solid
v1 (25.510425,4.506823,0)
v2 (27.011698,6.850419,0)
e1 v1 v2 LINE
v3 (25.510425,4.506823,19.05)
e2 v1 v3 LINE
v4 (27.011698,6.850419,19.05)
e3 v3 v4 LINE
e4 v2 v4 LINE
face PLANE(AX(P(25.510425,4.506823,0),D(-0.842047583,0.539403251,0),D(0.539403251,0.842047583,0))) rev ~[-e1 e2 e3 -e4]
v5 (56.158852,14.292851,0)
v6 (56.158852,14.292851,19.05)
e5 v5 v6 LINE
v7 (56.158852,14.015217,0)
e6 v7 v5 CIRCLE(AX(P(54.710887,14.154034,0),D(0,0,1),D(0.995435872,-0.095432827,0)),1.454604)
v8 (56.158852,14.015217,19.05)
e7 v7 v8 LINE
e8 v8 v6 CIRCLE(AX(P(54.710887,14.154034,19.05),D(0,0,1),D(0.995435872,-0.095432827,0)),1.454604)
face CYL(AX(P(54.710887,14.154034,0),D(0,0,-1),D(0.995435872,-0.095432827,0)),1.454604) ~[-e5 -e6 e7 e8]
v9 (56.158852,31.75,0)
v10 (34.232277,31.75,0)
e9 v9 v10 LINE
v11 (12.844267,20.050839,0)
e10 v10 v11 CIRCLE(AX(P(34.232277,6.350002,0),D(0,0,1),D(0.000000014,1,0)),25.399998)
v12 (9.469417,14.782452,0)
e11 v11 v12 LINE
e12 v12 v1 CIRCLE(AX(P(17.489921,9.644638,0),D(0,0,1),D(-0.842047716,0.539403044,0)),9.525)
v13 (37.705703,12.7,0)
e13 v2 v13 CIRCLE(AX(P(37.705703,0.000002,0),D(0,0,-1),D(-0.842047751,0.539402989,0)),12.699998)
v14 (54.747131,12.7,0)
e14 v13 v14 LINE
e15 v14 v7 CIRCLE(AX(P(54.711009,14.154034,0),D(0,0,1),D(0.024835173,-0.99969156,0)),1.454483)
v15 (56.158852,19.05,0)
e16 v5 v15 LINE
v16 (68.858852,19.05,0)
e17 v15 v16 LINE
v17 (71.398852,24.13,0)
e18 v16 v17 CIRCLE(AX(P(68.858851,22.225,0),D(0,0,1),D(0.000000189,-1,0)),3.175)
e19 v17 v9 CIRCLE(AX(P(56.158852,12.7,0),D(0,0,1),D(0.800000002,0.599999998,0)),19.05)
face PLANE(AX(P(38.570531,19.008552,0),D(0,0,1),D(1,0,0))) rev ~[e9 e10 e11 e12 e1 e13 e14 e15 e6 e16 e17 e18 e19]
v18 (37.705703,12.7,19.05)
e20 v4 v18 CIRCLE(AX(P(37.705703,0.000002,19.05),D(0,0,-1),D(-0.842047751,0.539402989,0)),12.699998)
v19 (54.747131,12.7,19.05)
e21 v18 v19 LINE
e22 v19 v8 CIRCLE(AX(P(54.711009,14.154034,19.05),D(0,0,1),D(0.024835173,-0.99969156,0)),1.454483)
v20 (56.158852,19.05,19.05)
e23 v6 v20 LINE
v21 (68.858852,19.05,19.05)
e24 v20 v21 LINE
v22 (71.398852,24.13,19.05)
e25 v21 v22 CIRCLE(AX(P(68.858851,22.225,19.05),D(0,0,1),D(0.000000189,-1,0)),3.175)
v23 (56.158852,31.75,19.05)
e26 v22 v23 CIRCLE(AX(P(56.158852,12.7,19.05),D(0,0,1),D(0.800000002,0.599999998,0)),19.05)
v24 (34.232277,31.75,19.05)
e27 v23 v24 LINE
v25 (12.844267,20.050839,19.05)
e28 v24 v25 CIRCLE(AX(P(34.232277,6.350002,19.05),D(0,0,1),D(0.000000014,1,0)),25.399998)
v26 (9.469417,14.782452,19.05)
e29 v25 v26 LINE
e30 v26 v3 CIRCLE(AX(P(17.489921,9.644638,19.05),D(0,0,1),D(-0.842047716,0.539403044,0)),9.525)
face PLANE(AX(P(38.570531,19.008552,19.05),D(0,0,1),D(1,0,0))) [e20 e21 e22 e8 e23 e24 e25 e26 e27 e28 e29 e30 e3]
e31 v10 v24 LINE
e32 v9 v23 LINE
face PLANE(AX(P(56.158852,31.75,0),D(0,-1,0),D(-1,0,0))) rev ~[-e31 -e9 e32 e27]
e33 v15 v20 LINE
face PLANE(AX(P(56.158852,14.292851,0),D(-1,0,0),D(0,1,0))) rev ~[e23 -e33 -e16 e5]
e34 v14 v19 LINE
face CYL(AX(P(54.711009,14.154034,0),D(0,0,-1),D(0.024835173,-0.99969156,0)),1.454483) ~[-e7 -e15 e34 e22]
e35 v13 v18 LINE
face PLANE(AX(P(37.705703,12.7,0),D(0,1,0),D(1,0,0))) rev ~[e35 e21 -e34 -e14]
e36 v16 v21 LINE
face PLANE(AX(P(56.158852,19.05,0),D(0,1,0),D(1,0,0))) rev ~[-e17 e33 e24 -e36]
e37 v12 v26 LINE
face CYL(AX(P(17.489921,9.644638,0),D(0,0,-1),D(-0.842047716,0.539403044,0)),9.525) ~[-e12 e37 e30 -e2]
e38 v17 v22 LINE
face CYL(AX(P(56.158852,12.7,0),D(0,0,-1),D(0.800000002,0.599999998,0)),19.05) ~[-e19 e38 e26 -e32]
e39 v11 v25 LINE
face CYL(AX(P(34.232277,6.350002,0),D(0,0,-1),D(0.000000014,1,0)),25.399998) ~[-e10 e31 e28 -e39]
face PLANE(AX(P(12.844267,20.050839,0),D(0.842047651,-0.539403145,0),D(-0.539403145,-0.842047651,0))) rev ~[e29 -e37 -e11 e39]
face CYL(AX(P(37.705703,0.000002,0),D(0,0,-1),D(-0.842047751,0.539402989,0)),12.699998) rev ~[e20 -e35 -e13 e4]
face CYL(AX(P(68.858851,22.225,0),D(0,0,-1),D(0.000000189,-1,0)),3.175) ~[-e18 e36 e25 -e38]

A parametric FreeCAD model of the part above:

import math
import FreeCAD as App
import Part
import Sketcher

V = App.Vector
Q = App.Units.Quantity

doc = App.newDocument("Part")
body = doc.addObject("PartDesign::Body", "Body")

sketch1 = body.newObject("Sketcher::SketchObject", "Sketch")
sketch1.AttachmentSupport = (doc.getObject("XY_Plane"), [""])
sketch1.MapMode = "FlatFace"
sketch1.addGeometry(Part.LineSegment(V(12.84, 20.05, 0), V(9.47, 14.78, 0)), False)
sketch1.addGeometry(Part.ArcOfCircle(Part.Circle(V(17.49, 9.64, 0), V(0, 0, 1), 9.52), math.radians(147), math.radians(327)), False)
sketch1.addGeometry(Part.LineSegment(V(25.51, 4.51, 0), V(27.01, 6.85, 0)), False)
sketch1.addGeometry(Part.ArcOfCircle(Part.Circle(V(37.71, 0, 0), V(0, 0, 1), 12.7), math.radians(90), math.radians(147)), False)
sketch1.addGeometry(Part.LineSegment(V(37.71, 12.7, 0), V(54.75, 12.7, 0)), False)
sketch1.addGeometry(Part.ArcOfCircle(Part.Circle(V(54.71, 14.15, 0), V(0, 0, 1), 1.45), math.radians(-89), math.radians(-5)), False)
sketch1.addGeometry(Part.ArcOfCircle(Part.Circle(V(54.71, 14.15, 0), V(0, 0, 1), 1.45), math.radians(-5.48), math.radians(5.48)), False)
sketch1.addGeometry(Part.LineSegment(V(56.16, 14.29, 0), V(56.16, 19.05, 0)), False)
sketch1.addGeometry(Part.LineSegment(V(56.16, 19.05, 0), V(68.86, 19.05, 0)), False)
sketch1.addGeometry(Part.ArcOfCircle(Part.Circle(V(68.86, 22.23, 0), V(0, 0, 1), 3.18), math.radians(-90), math.radians(37)), False)
sketch1.addGeometry(Part.ArcOfCircle(Part.Circle(V(56.16, 12.7, 0), V(0, 0, 1), 19.05), math.radians(37), math.radians(90)), False)
sketch1.addGeometry(Part.LineSegment(V(56.16, 31.75, 0), V(34.23, 31.75, 0)), False)
sketch1.addGeometry(Part.ArcOfCircle(Part.Circle(V(34.23, 6.35, 0), V(0, 0, 1), 25.4), math.radians(90), math.radians(147)), False)
sketch1.addConstraint(Sketcher.Constraint("Tangent", 0, 2, 1, 1))
sketch1.addConstraint(Sketcher.Constraint("Tangent", 1, 2, 2, 1))
sketch1.addConstraint(Sketcher.Constraint("Tangent", 2, 2, 3, 2))
sketch1.addConstraint(Sketcher.Constraint("Tangent", 3, 1, 4, 1))
sketch1.addConstraint(Sketcher.Constraint("Coincident", 4, 2, 5, 1))
sketch1.addConstraint(Sketcher.Constraint("Coincident", 5, 2, 6, 1))
sketch1.addConstraint(Sketcher.Constraint("Coincident", 6, 2, 7, 1))
sketch1.addConstraint(Sketcher.Constraint("Coincident", 7, 2, 8, 1))
sketch1.addConstraint(Sketcher.Constraint("Tangent", 8, 2, 9, 1))
sketch1.addConstraint(Sketcher.Constraint("Tangent", 9, 2, 10, 1))
sketch1.addConstraint(Sketcher.Constraint("Tangent", 10, 2, 11, 1))
sketch1.addConstraint(Sketcher.Constraint("Tangent", 11, 2, 12, 1))
sketch1.addConstraint(Sketcher.Constraint("Tangent", 12, 2, 0, 1))
sketch1.addConstraint(Sketcher.Constraint("Horizontal", 4))
sketch1.addConstraint(Sketcher.Constraint("Vertical", 7))
sketch1.addConstraint(Sketcher.Constraint("Horizontal", 8))
sketch1.addConstraint(Sketcher.Constraint("Horizontal", 11))
sketch1.addConstraint(Sketcher.Constraint("Parallel", 0, 2))
sketch1.addConstraint(Sketcher.Constraint("Horizontal", 5, 3, 6, 3))
sketch1.addConstraint(Sketcher.Constraint("Horizontal", 10, 3, 3, 1))
sketch1.addConstraint(Sketcher.Constraint("Vertical", 10, 3, 5, 2))
sketch1.addConstraint(Sketcher.Constraint("Vertical", 5, 2, 6, 2))
sketch1.addConstraint(Sketcher.Constraint("Radius", 12, Q("0.9999999 in")))
sketch1.addConstraint(Sketcher.Constraint("Radius", 3, Q("0.4999999 in")))
sketch1.addConstraint(Sketcher.Constraint("Radius", 10, Q("0.75 in")))
sketch1.addConstraint(Sketcher.Constraint("DistanceX", 8, 1, 8, 2, Q("0.5 in")))
sketch1.addConstraint(Sketcher.Constraint("Radius", 1, Q("0.375 in")))
sketch1.addConstraint(Sketcher.Constraint("Radius", 9, Q("0.125 in")))
sketch1.addConstraint(Sketcher.Constraint("DistanceY", -1, 1, 10, 3, Q("0.5 in")))
sketch1.addConstraint(Sketcher.Constraint("Radius", 5, Q("1.454483 mm")))
sketch1.addConstraint(Sketcher.Constraint("Radius", 6, Q("1.454604 mm")))
sketch1.addConstraint(Sketcher.Constraint("DistanceX", 4, 1, 4, 2, Q("17.041428 mm")))
sketch1.addConstraint(Sketcher.Constraint("DistanceY", 7, 1, 7, 2, Q("4.757149 mm")))
sketch1.addConstraint(Sketcher.Constraint("DistanceY", 1, 3, 12, 2, Q("10.406201 mm")))
sketch1.addConstraint(Sketcher.Constraint("Distance", 2, Q("2.783211 mm")))
sketch1.addConstraint(Sketcher.Constraint("DistanceX", 11, 2, 11, 1, Q("21.926575 mm")))
sketch1.addConstraint(Sketcher.Constraint("DistanceX", -1, 1, 1, 3, Q("17.489921 mm")))
pad1 = body.newObject("PartDesign::Pad", "Pad")
pad1.Profile = sketch1
pad1.Length = Q("0.75 in")

doc.recompute()
